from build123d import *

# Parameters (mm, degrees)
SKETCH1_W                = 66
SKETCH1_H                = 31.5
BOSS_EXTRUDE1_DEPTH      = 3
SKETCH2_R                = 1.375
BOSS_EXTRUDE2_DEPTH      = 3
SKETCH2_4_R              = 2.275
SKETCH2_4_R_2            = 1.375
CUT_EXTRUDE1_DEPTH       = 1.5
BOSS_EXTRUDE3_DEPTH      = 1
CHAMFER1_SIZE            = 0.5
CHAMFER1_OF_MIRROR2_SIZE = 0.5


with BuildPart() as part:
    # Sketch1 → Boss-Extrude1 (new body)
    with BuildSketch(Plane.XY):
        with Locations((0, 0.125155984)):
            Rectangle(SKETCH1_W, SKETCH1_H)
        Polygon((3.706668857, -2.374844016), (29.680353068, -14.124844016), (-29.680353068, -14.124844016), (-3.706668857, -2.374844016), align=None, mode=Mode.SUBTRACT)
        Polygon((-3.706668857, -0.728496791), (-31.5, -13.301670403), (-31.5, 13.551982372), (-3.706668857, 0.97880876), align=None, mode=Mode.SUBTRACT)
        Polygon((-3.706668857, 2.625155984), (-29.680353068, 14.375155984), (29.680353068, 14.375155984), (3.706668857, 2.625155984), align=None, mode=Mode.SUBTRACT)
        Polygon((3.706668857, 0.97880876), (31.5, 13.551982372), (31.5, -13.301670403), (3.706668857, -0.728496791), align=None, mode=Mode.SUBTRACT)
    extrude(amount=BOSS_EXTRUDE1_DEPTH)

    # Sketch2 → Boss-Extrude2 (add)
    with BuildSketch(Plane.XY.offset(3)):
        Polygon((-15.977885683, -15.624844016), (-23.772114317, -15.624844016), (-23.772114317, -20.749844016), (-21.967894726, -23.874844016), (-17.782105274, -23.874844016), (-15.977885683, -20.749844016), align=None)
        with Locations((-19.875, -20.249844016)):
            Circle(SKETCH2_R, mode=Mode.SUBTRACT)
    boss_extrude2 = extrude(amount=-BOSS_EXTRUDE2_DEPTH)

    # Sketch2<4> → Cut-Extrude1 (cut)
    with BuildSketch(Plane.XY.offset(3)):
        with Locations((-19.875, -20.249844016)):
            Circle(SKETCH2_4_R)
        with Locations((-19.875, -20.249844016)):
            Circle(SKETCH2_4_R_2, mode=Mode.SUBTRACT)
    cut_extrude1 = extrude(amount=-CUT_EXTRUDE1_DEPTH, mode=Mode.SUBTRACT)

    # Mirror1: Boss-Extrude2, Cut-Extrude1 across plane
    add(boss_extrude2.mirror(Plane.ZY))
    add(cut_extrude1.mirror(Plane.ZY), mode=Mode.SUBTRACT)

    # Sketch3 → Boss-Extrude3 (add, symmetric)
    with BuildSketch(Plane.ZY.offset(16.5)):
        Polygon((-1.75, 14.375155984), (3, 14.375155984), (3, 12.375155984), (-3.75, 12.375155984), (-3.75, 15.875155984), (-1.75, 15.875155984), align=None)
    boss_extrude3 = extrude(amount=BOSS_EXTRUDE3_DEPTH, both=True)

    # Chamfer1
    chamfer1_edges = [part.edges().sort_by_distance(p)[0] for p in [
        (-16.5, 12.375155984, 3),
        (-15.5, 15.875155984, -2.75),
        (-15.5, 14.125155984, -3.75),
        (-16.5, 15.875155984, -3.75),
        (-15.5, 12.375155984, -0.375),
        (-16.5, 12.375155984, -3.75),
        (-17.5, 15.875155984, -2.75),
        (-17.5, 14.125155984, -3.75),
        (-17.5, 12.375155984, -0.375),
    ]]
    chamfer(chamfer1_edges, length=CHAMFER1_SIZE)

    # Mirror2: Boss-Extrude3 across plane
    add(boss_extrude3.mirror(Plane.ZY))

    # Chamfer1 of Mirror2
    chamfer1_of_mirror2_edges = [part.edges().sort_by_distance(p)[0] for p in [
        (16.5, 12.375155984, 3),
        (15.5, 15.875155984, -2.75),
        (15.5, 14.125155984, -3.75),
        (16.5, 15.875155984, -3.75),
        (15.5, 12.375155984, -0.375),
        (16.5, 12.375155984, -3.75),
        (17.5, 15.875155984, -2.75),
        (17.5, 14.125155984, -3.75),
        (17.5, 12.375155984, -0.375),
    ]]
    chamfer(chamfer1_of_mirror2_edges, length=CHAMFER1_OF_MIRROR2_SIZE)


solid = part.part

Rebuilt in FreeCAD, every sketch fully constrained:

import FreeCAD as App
import Part
import Sketcher
Q = App.Units.Quantity


def edges_at(feature, points):
    """Names of the edges that pass closest to the given points."""
    edges = feature.Shape.Edges
    near = lambda p: min(range(len(edges)), key=lambda i: edges[i].distToShape(Part.Vertex(*p))[0])
    return sorted({f"Edge{near(p) + 1}" for p in points})

doc = App.newDocument("Part")
params = doc.addObject("Spreadsheet::Sheet", "Params")
for row, (alias, value) in enumerate([
    ("sketch1_width", "66 mm"),
    ("sketch1_height", "31.5 mm"),
    ("pad1_length", "3 mm"),
    ("sketch2_diameter", "2.75 mm"),
    ("pad2_length", "3 mm"),
    ("sketch3_diameter", "4.55 mm"),
    ("sketch3_diameter2", "2.75 mm"),
    ("pocket1_length", "1.5 mm"),
    ("sketch4_width", "2 mm"),
    ("sketch4_width2", "1.5 mm"),
    ("sketch4_height", "4.75 mm"),
    ("pad3_length", "2 mm"),
    ("chamfer_size", "0.5 mm"),
    ("chamfer2_size", "0.5 mm"),
], start=1):
    params.set(f"A{row}", alias)
    params.set(f"B{row}", "=" + value)
    params.setAlias(f"B{row}", alias)

body = doc.addObject("PartDesign::Body", "Body")

sketch1 = body.newObject("Sketcher::SketchObject", "Sketch")
sketch1.AttachmentSupport = (doc.getObject("XY_Plane"), [""])
sketch1.MapMode = "FlatFace"
sketch1.addGeometry(Part.LineSegment(App.Vector(-33, 15.9, 0), App.Vector(-33, -15.6, 0)), False)
sketch1.addGeometry(Part.LineSegment(App.Vector(-33, -15.6, 0), App.Vector(33, -15.6, 0)), False)
sketch1.addGeometry(Part.LineSegment(App.Vector(33, -15.6, 0), App.Vector(33, 15.9, 0)), False)
sketch1.addGeometry(Part.LineSegment(App.Vector(33, 15.9, 0), App.Vector(-33, 15.9, 0)), False)
sketch1.addGeometry(Part.LineSegment(App.Vector(-3.7, -2.4, 0), App.Vector(3.7, -2.4, 0)), False)
sketch1.addGeometry(Part.LineSegment(App.Vector(3.7, -2.4, 0), App.Vector(29.7, -14.1, 0)), False)
sketch1.addGeometry(Part.LineSegment(App.Vector(29.7, -14.1, 0), App.Vector(-29.7, -14.1, 0)), False)
sketch1.addGeometry(Part.LineSegment(App.Vector(-29.7, -14.1, 0), App.Vector(-3.7, -2.4, 0)), False)
sketch1.addGeometry(Part.LineSegment(App.Vector(-3.7, 1, 0), App.Vector(-3.7, -0.7, 0)), False)
sketch1.addGeometry(Part.LineSegment(App.Vector(-3.7, -0.7, 0), App.Vector(-31.5, -13.3, 0)), False)
sketch1.addGeometry(Part.LineSegment(App.Vector(-31.5, -13.3, 0), App.Vector(-31.5, 13.6, 0)), False)
sketch1.addGeometry(Part.LineSegment(App.Vector(-31.5, 13.6, 0), App.Vector(-3.7, 1, 0)), False)
sketch1.addGeometry(Part.LineSegment(App.Vector(3.7, -0.7, 0), App.Vector(3.7, 1, 0)), False)
sketch1.addGeometry(Part.LineSegment(App.Vector(3.7, 1, 0), App.Vector(31.5, 13.6, 0)), False)
sketch1.addGeometry(Part.LineSegment(App.Vector(31.5, 13.6, 0), App.Vector(31.5, -13.3, 0)), False)
sketch1.addGeometry(Part.LineSegment(App.Vector(31.5, -13.3, 0), App.Vector(3.7, -0.7, 0)), False)
sketch1.addGeometry(Part.LineSegment(App.Vector(3.7, 2.6, 0), App.Vector(-3.7, 2.6, 0)), False)
sketch1.addGeometry(Part.LineSegment(App.Vector(-3.7, 2.6, 0), App.Vector(-29.7, 14.4, 0)), False)
sketch1.addGeometry(Part.LineSegment(App.Vector(-29.7, 14.4, 0), App.Vector(29.7, 14.4, 0)), False)
sketch1.addGeometry(Part.LineSegment(App.Vector(29.7, 14.4, 0), App.Vector(3.7, 2.6, 0)), False)
sketch1.addConstraint(Sketcher.Constraint("Coincident", 0, 2, 1, 1))
sketch1.addConstraint(Sketcher.Constraint("Coincident", 1, 2, 2, 1))
sketch1.addConstraint(Sketcher.Constraint("Coincident", 2, 2, 3, 1))
sketch1.addConstraint(Sketcher.Constraint("Coincident", 3, 2, 0, 1))
sketch1.addConstraint(Sketcher.Constraint("Coincident", 4, 2, 5, 1))
sketch1.addConstraint(Sketcher.Constraint("Coincident", 5, 2, 6, 1))
sketch1.addConstraint(Sketcher.Constraint("Coincident", 6, 2, 7, 1))
sketch1.addConstraint(Sketcher.Constraint("Coincident", 7, 2, 4, 1))
sketch1.addConstraint(Sketcher.Constraint("Coincident", 8, 2, 9, 1))
sketch1.addConstraint(Sketcher.Constraint("Coincident", 9, 2, 10, 1))
sketch1.addConstraint(Sketcher.Constraint("Coincident", 10, 2, 11, 1))
sketch1.addConstraint(Sketcher.Constraint("Coincident", 11, 2, 8, 1))
sketch1.addConstraint(Sketcher.Constraint("Coincident", 12, 2, 13, 1))
sketch1.addConstraint(Sketcher.Constraint("Coincident", 13, 2, 14, 1))
sketch1.addConstraint(Sketcher.Constraint("Coincident", 14, 2, 15, 1))
sketch1.addConstraint(Sketcher.Constraint("Coincident", 15, 2, 12, 1))
sketch1.addConstraint(Sketcher.Constraint("Coincident", 16, 2, 17, 1))
sketch1.addConstraint(Sketcher.Constraint("Coincident", 17, 2, 18, 1))
sketch1.addConstraint(Sketcher.Constraint("Coincident", 18, 2, 19, 1))
sketch1.addConstraint(Sketcher.Constraint("Coincident", 19, 2, 16, 1))
sketch1.addConstraint(Sketcher.Constraint("Vertical", 0))
sketch1.addConstraint(Sketcher.Constraint("Horizontal", 1))
sketch1.addConstraint(Sketcher.Constraint("Vertical", 2))
sketch1.addConstraint(Sketcher.Constraint("Horizontal", 3))
sketch1.addConstraint(Sketcher.Constraint("Horizontal", 4))
sketch1.addConstraint(Sketcher.Constraint("Horizontal", 6))
sketch1.addConstraint(Sketcher.Constraint("Vertical", 8))
sketch1.addConstraint(Sketcher.Constraint("Vertical", 10))
sketch1.addConstraint(Sketcher.Constraint("Vertical", 12))
sketch1.addConstraint(Sketcher.Constraint("Vertical", 14))
sketch1.addConstraint(Sketcher.Constraint("Horizontal", 16))
sketch1.addConstraint(Sketcher.Constraint("Horizontal", 18))
sketch1.addConstraint(Sketcher.Constraint("Symmetric", 11, 2, 12, 2, -2))
sketch1.addConstraint(Sketcher.Constraint("Symmetric", 10, 2, 13, 2, -2))
sketch1.addConstraint(Sketcher.Constraint("Parallel", 7, 9))
sketch1.addConstraint(Sketcher.Constraint("Parallel", 5, 11))
sketch1.addConstraint(Sketcher.Constraint("Parallel", 9, 13))
sketch1.addConstraint(Sketcher.Constraint("Parallel", 11, 15))
sketch1.addConstraint(Sketcher.Constraint("Parallel", 15, 17))
sketch1.addConstraint(Sketcher.Constraint("Parallel", 13, 19))
sketch1.addConstraint(Sketcher.Constraint("Horizontal", 9, 2, 14, 2))
sketch1.addConstraint(Sketcher.Constraint("Vertical", 7, 2, 8, 2))
sketch1.addConstraint(Sketcher.Constraint("Vertical", 4, 2, 12, 2))
sketch1.addConstraint(Sketcher.Constraint("Vertical", 11, 2, 16, 2))
sketch1.addConstraint(Sketcher.Constraint("Vertical", 6, 2, 17, 2))
sketch1.addConstraint(Sketcher.Constraint("Vertical", 5, 2, 18, 2))
sketch1.addConstraint(Sketcher.Constraint("DistanceX", 1, 1, 1, 2, Q("66 mm")))
sketch1.addConstraint(Sketcher.Constraint("DistanceY", 0, 2, 0, 1, Q("31.5 mm")))
sketch1.addConstraint(Sketcher.Constraint("DistanceX", 0, 2, -1, 1, Q("33 mm")))
sketch1.addConstraint(Sketcher.Constraint("DistanceY", 5, 2, 2, 2, Q("30 mm")))
sketch1.addConstraint(Sketcher.Constraint("DistanceY", 7, 2, 16, 2, Q("5 mm")))
sketch1.addConstraint(Sketcher.Constraint("DistanceX", 9, 2, -1, 1, Q("31.5 mm")))
sketch1.addConstraint(Sketcher.Constraint("DistanceY", 17, 2, 3, 2, Q("1.5 mm")))
sketch1.addConstraint(Sketcher.Constraint("Distance", 5, Q("28.507802 mm")))
sketch1.addConstraint(Sketcher.Constraint("DistanceX", 4, 1, 4, 2, Q("7.413338 mm")))
sketch1.addConstraint(Sketcher.Constraint("DistanceY", 8, 2, 8, 1, Q("1.707306 mm")))
sketch1.addConstraint(Sketcher.Constraint("DistanceY", 9, 2, -1, 1, Q("13.30167 mm")))
sketch1.addConstraint(Sketcher.Constraint("DistanceY", 0, 2, -1, 1, Q("15.624844 mm")))
sketch1.setExpression("Constraints[46]", "Params.sketch1_width")
sketch1.setExpression("Constraints[47]", "Params.sketch1_height")
pad1 = body.newObject("PartDesign::Pad", "Pad")
pad1.Profile = sketch1
pad1.setExpression("Length", "Params.pad1_length")

sketch2 = body.newObject("Sketcher::SketchObject", "Sketch001")
sketch2.AttachmentSupport = (doc.getObject("XY_Plane"), [""])
sketch2.MapMode = "FlatFace"
sketch2.AttachmentOffset = App.Placement(App.Vector(0, 0, 3), App.Rotation())
sketch2.addGeometry(Part.LineSegment(App.Vector(-16, -15.6, 0), App.Vector(-23.8, -15.6, 0)), False)
sketch2.addGeometry(Part.LineSegment(App.Vector(-23.8, -15.6, 0), App.Vector(-23.8, -20.7, 0)), False)
sketch2.addGeometry(Part.LineSegment(App.Vector(-23.8, -20.7, 0), App.Vector(-22, -23.9, 0)), False)
sketch2.addGeometry(Part.LineSegment(App.Vector(-22, -23.9, 0), App.Vector(-17.8, -23.9, 0)), False)
sketch2.addGeometry(Part.LineSegment(App.Vector(-17.8, -23.9, 0), App.Vector(-16, -20.7, 0)), False)
sketch2.addGeometry(Part.LineSegment(App.Vector(-16, -20.7, 0), App.Vector(-16, -15.6, 0)), False)
sketch2.addGeometry(Part.Circle(App.Vector(-19.9, -20.2, 0), App.Vector(0, 0, 1), 1.4), False)
sketch2.addConstraint(Sketcher.Constraint("Coincident", 0, 2, 1, 1))
sketch2.addConstraint(Sketcher.Constraint("Coincident", 1, 2, 2, 1))
sketch2.addConstraint(Sketcher.Constraint("Coincident", 2, 2, 3, 1))
sketch2.addConstraint(Sketcher.Constraint("Coincident", 3, 2, 4, 1))
sketch2.addConstraint(Sketcher.Constraint("Coincident", 4, 2, 5, 1))
sketch2.addConstraint(Sketcher.Constraint("Coincident", 5, 2, 0, 1))
sketch2.addConstraint(Sketcher.Constraint("Horizontal", 0))
sketch2.addConstraint(Sketcher.Constraint("Vertical", 1))
sketch2.addConstraint(Sketcher.Constraint("Horizontal", 3))
sketch2.addConstraint(Sketcher.Constraint("Vertical", 5))
sketch2.addConstraint(Sketcher.Constraint("Horizontal", 1, 2, 4, 2))
sketch2.addConstraint(Sketcher.Constraint("Equal", 2, 4))
sketch2.addConstraint(Sketcher.Constraint("Diameter", 6, Q("2.75 mm")))
sketch2.addConstraint(Sketcher.Constraint("Angle", 2, Q("-60 deg")))
sketch2.addConstraint(Sketcher.Constraint("DistanceY", 1, 2, 6, 3, Q("0.5 mm")))
sketch2.addConstraint(Sketcher.Constraint("DistanceY", 1, 2, 1, 1, Q("5.125 mm")))
sketch2.addConstraint(Sketcher.Constraint("DistanceY", 2, 2, 0, 2, Q("8.25 mm")))
sketch2.addConstraint(Sketcher.Constraint("DistanceX", 6, 3, -1, 1, Q("19.875 mm")))
sketch2.addConstraint(Sketcher.Constraint("DistanceX", 0, 2, 0, 1, Q("7.794229 mm")))
sketch2.addConstraint(Sketcher.Constraint("DistanceY", 6, 3, -1, 1, Q("20.249844 mm")))
sketch2.addConstraint(Sketcher.Constraint("DistanceX", 0, 2, -1, 1, Q("23.772114 mm")))
sketch2.setExpression("Constraints[12]", "Params.sketch2_diameter")
pad2 = body.newObject("PartDesign::Pad", "Pad001")
pad2.Profile = sketch2
pad2.setExpression("Length", "Params.pad2_length")
pad2.Reversed = True

sketch3 = body.newObject("Sketcher::SketchObject", "Sketch002")
sketch3.AttachmentSupport = (doc.getObject("XY_Plane"), [""])
sketch3.MapMode = "FlatFace"
sketch3.AttachmentOffset = App.Placement(App.Vector(0, 0, 3), App.Rotation())
sketch3.addGeometry(Part.Circle(App.Vector(-19.9, -20.2, 0), App.Vector(0, 0, 1), 2.3), False)
sketch3.addGeometry(Part.Circle(App.Vector(-19.9, -20.2, 0), App.Vector(0, 0, 1), 1.4), False)
sketch3.addConstraint(Sketcher.Constraint("Coincident", 1, 3, 0, 3))
sketch3.addConstraint(Sketcher.Constraint("Diameter", 0, Q("4.55 mm")))
sketch3.addConstraint(Sketcher.Constraint("Diameter", 1, Q("2.75 mm")))
sketch3.addConstraint(Sketcher.Constraint("DistanceX", 0, 3, -1, 1, Q("19.875 mm")))
sketch3.addConstraint(Sketcher.Constraint("DistanceY", 0, 3, -1, 1, Q("20.249844 mm")))
sketch3.setExpression("Constraints[1]", "Params.sketch3_diameter")
sketch3.setExpression("Constraints[2]", "Params.sketch3_diameter2")
pocket1 = body.newObject("PartDesign::Pocket", "Pocket")
pocket1.Profile = sketch3
pocket1.setExpression("Length", "Params.pocket1_length")
doc.recompute()

mirrored = body.newObject("PartDesign::Mirrored", "Mirrored")
mirrored.Originals = [pad2, pocket1]
mirrored.MirrorPlane = (doc.getObject("YZ_Plane"), [""])
body.Tip = mirrored

sketch4 = body.newObject("Sketcher::SketchObject", "Sketch003")
sketch4.AttachmentSupport = (doc.getObject("YZ_Plane"), [""])
sketch4.MapMode = "FlatFace"
sketch4.AttachmentOffset = App.Placement(App.Vector(0, 0, -16.5), App.Rotation())
sketch4.addGeometry(Part.LineSegment(App.Vector(14.4, 3, 0), App.Vector(14.4, -1.8, 0)), False)
sketch4.addGeometry(Part.LineSegment(App.Vector(14.4, -1.8, 0), App.Vector(15.9, -1.8, 0)), False)
sketch4.addGeometry(Part.LineSegment(App.Vector(15.9, -1.8, 0), App.Vector(15.9, -3.8, 0)), False)
sketch4.addGeometry(Part.LineSegment(App.Vector(15.9, -3.8, 0), App.Vector(12.4, -3.8, 0)), False)
sketch4.addGeometry(Part.LineSegment(App.Vector(12.4, -3.8, 0), App.Vector(12.4, 3, 0)), False)
sketch4.addGeometry(Part.LineSegment(App.Vector(12.4, 3, 0), App.Vector(14.4, 3, 0)), False)
sketch4.addConstraint(Sketcher.Constraint("Coincident", 0, 2, 1, 1))
sketch4.addConstraint(Sketcher.Constraint("Coincident", 1, 2, 2, 1))
sketch4.addConstraint(Sketcher.Constraint("Coincident", 2, 2, 3, 1))
sketch4.addConstraint(Sketcher.Constraint("Coincident", 3, 2, 4, 1))
sketch4.addConstraint(Sketcher.Constraint("Coincident", 4, 2, 5, 1))
sketch4.addConstraint(Sketcher.Constraint("Coincident", 5, 2, 0, 1))
sketch4.addConstraint(Sketcher.Constraint("Vertical", 0))
sketch4.addConstraint(Sketcher.Constraint("Horizontal", 1))
sketch4.addConstraint(Sketcher.Constraint("Vertical", 2))
sketch4.addConstraint(Sketcher.Constraint("Horizontal", 3))
sketch4.addConstraint(Sketcher.Constraint("Vertical", 4))
sketch4.addConstraint(Sketcher.Constraint("Horizontal", 5))
sketch4.addConstraint(Sketcher.Constraint("Equal", 5, 2))
sketch4.addConstraint(Sketcher.Constraint("DistanceX", 5, 1, 5, 2, Q("2 mm")))
sketch4.addConstraint(Sketcher.Constraint("DistanceX", 1, 1, 1, 2, Q("1.5 mm")))
sketch4.addConstraint(Sketcher.Constraint("DistanceY", -1, 1, 4, 2, Q("3 mm")))
sketch4.addConstraint(Sketcher.Constraint("DistanceY", 0, 2, 0, 1, Q("4.75 mm")))
sketch4.addConstraint(Sketcher.Constraint("DistanceX", -1, 1, 0, 2, Q("14.375156 mm")))
sketch4.setExpression("Constraints[13]", "Params.sketch4_width")
sketch4.setExpression("Constraints[14]", "Params.sketch4_width2")
sketch4.setExpression("Constraints[16]", "Params.sketch4_height")
pad3 = body.newObject("PartDesign::Pad", "Pad002")
pad3.Profile = sketch4
pad3.setExpression("Length", "Params.pad3_length")
pad3.Midplane = True
doc.recompute()

chamfer = body.newObject("PartDesign::Chamfer", "Chamfer")
chamfer.Base = (pad3, edges_at(pad3, [
    (-16.5, 12.375, 3),
    (-15.5, 15.875, -2.75),
    (-15.5, 14.125, -3.75),
    (-16.5, 15.875, -3.75),
    (-15.5, 12.375, -0.375),
    (-16.5, 12.375, -3.75),
    (-17.5, 15.875, -2.75),
    (-17.5, 14.125, -3.75),
    (-17.5, 12.375, -0.375),
]))
chamfer.setExpression("Size", "Params.chamfer_size")
doc.recompute()

mirrored2 = body.newObject("PartDesign::Mirrored", "Mirrored001")
mirrored2.Originals = [pad3]
mirrored2.MirrorPlane = (doc.getObject("YZ_Plane"), [""])
body.Tip = mirrored2
doc.recompute()

chamfer2 = body.newObject("PartDesign::Chamfer", "Chamfer001")
chamfer2.Base = (mirrored2, edges_at(mirrored2, [
    (16.5, 12.375, 3),
    (15.5, 15.875, -2.75),
    (15.5, 14.125, -3.75),
    (16.5, 15.875, -3.75),
    (15.5, 12.375, -0.375),
    (16.5, 12.375, -3.75),
    (17.5, 15.875, -2.75),
    (17.5, 14.125, -3.75),
    (17.5, 12.375, -0.375),
]))
chamfer2.setExpression("Size", "Params.chamfer2_size")

doc.recompute()
